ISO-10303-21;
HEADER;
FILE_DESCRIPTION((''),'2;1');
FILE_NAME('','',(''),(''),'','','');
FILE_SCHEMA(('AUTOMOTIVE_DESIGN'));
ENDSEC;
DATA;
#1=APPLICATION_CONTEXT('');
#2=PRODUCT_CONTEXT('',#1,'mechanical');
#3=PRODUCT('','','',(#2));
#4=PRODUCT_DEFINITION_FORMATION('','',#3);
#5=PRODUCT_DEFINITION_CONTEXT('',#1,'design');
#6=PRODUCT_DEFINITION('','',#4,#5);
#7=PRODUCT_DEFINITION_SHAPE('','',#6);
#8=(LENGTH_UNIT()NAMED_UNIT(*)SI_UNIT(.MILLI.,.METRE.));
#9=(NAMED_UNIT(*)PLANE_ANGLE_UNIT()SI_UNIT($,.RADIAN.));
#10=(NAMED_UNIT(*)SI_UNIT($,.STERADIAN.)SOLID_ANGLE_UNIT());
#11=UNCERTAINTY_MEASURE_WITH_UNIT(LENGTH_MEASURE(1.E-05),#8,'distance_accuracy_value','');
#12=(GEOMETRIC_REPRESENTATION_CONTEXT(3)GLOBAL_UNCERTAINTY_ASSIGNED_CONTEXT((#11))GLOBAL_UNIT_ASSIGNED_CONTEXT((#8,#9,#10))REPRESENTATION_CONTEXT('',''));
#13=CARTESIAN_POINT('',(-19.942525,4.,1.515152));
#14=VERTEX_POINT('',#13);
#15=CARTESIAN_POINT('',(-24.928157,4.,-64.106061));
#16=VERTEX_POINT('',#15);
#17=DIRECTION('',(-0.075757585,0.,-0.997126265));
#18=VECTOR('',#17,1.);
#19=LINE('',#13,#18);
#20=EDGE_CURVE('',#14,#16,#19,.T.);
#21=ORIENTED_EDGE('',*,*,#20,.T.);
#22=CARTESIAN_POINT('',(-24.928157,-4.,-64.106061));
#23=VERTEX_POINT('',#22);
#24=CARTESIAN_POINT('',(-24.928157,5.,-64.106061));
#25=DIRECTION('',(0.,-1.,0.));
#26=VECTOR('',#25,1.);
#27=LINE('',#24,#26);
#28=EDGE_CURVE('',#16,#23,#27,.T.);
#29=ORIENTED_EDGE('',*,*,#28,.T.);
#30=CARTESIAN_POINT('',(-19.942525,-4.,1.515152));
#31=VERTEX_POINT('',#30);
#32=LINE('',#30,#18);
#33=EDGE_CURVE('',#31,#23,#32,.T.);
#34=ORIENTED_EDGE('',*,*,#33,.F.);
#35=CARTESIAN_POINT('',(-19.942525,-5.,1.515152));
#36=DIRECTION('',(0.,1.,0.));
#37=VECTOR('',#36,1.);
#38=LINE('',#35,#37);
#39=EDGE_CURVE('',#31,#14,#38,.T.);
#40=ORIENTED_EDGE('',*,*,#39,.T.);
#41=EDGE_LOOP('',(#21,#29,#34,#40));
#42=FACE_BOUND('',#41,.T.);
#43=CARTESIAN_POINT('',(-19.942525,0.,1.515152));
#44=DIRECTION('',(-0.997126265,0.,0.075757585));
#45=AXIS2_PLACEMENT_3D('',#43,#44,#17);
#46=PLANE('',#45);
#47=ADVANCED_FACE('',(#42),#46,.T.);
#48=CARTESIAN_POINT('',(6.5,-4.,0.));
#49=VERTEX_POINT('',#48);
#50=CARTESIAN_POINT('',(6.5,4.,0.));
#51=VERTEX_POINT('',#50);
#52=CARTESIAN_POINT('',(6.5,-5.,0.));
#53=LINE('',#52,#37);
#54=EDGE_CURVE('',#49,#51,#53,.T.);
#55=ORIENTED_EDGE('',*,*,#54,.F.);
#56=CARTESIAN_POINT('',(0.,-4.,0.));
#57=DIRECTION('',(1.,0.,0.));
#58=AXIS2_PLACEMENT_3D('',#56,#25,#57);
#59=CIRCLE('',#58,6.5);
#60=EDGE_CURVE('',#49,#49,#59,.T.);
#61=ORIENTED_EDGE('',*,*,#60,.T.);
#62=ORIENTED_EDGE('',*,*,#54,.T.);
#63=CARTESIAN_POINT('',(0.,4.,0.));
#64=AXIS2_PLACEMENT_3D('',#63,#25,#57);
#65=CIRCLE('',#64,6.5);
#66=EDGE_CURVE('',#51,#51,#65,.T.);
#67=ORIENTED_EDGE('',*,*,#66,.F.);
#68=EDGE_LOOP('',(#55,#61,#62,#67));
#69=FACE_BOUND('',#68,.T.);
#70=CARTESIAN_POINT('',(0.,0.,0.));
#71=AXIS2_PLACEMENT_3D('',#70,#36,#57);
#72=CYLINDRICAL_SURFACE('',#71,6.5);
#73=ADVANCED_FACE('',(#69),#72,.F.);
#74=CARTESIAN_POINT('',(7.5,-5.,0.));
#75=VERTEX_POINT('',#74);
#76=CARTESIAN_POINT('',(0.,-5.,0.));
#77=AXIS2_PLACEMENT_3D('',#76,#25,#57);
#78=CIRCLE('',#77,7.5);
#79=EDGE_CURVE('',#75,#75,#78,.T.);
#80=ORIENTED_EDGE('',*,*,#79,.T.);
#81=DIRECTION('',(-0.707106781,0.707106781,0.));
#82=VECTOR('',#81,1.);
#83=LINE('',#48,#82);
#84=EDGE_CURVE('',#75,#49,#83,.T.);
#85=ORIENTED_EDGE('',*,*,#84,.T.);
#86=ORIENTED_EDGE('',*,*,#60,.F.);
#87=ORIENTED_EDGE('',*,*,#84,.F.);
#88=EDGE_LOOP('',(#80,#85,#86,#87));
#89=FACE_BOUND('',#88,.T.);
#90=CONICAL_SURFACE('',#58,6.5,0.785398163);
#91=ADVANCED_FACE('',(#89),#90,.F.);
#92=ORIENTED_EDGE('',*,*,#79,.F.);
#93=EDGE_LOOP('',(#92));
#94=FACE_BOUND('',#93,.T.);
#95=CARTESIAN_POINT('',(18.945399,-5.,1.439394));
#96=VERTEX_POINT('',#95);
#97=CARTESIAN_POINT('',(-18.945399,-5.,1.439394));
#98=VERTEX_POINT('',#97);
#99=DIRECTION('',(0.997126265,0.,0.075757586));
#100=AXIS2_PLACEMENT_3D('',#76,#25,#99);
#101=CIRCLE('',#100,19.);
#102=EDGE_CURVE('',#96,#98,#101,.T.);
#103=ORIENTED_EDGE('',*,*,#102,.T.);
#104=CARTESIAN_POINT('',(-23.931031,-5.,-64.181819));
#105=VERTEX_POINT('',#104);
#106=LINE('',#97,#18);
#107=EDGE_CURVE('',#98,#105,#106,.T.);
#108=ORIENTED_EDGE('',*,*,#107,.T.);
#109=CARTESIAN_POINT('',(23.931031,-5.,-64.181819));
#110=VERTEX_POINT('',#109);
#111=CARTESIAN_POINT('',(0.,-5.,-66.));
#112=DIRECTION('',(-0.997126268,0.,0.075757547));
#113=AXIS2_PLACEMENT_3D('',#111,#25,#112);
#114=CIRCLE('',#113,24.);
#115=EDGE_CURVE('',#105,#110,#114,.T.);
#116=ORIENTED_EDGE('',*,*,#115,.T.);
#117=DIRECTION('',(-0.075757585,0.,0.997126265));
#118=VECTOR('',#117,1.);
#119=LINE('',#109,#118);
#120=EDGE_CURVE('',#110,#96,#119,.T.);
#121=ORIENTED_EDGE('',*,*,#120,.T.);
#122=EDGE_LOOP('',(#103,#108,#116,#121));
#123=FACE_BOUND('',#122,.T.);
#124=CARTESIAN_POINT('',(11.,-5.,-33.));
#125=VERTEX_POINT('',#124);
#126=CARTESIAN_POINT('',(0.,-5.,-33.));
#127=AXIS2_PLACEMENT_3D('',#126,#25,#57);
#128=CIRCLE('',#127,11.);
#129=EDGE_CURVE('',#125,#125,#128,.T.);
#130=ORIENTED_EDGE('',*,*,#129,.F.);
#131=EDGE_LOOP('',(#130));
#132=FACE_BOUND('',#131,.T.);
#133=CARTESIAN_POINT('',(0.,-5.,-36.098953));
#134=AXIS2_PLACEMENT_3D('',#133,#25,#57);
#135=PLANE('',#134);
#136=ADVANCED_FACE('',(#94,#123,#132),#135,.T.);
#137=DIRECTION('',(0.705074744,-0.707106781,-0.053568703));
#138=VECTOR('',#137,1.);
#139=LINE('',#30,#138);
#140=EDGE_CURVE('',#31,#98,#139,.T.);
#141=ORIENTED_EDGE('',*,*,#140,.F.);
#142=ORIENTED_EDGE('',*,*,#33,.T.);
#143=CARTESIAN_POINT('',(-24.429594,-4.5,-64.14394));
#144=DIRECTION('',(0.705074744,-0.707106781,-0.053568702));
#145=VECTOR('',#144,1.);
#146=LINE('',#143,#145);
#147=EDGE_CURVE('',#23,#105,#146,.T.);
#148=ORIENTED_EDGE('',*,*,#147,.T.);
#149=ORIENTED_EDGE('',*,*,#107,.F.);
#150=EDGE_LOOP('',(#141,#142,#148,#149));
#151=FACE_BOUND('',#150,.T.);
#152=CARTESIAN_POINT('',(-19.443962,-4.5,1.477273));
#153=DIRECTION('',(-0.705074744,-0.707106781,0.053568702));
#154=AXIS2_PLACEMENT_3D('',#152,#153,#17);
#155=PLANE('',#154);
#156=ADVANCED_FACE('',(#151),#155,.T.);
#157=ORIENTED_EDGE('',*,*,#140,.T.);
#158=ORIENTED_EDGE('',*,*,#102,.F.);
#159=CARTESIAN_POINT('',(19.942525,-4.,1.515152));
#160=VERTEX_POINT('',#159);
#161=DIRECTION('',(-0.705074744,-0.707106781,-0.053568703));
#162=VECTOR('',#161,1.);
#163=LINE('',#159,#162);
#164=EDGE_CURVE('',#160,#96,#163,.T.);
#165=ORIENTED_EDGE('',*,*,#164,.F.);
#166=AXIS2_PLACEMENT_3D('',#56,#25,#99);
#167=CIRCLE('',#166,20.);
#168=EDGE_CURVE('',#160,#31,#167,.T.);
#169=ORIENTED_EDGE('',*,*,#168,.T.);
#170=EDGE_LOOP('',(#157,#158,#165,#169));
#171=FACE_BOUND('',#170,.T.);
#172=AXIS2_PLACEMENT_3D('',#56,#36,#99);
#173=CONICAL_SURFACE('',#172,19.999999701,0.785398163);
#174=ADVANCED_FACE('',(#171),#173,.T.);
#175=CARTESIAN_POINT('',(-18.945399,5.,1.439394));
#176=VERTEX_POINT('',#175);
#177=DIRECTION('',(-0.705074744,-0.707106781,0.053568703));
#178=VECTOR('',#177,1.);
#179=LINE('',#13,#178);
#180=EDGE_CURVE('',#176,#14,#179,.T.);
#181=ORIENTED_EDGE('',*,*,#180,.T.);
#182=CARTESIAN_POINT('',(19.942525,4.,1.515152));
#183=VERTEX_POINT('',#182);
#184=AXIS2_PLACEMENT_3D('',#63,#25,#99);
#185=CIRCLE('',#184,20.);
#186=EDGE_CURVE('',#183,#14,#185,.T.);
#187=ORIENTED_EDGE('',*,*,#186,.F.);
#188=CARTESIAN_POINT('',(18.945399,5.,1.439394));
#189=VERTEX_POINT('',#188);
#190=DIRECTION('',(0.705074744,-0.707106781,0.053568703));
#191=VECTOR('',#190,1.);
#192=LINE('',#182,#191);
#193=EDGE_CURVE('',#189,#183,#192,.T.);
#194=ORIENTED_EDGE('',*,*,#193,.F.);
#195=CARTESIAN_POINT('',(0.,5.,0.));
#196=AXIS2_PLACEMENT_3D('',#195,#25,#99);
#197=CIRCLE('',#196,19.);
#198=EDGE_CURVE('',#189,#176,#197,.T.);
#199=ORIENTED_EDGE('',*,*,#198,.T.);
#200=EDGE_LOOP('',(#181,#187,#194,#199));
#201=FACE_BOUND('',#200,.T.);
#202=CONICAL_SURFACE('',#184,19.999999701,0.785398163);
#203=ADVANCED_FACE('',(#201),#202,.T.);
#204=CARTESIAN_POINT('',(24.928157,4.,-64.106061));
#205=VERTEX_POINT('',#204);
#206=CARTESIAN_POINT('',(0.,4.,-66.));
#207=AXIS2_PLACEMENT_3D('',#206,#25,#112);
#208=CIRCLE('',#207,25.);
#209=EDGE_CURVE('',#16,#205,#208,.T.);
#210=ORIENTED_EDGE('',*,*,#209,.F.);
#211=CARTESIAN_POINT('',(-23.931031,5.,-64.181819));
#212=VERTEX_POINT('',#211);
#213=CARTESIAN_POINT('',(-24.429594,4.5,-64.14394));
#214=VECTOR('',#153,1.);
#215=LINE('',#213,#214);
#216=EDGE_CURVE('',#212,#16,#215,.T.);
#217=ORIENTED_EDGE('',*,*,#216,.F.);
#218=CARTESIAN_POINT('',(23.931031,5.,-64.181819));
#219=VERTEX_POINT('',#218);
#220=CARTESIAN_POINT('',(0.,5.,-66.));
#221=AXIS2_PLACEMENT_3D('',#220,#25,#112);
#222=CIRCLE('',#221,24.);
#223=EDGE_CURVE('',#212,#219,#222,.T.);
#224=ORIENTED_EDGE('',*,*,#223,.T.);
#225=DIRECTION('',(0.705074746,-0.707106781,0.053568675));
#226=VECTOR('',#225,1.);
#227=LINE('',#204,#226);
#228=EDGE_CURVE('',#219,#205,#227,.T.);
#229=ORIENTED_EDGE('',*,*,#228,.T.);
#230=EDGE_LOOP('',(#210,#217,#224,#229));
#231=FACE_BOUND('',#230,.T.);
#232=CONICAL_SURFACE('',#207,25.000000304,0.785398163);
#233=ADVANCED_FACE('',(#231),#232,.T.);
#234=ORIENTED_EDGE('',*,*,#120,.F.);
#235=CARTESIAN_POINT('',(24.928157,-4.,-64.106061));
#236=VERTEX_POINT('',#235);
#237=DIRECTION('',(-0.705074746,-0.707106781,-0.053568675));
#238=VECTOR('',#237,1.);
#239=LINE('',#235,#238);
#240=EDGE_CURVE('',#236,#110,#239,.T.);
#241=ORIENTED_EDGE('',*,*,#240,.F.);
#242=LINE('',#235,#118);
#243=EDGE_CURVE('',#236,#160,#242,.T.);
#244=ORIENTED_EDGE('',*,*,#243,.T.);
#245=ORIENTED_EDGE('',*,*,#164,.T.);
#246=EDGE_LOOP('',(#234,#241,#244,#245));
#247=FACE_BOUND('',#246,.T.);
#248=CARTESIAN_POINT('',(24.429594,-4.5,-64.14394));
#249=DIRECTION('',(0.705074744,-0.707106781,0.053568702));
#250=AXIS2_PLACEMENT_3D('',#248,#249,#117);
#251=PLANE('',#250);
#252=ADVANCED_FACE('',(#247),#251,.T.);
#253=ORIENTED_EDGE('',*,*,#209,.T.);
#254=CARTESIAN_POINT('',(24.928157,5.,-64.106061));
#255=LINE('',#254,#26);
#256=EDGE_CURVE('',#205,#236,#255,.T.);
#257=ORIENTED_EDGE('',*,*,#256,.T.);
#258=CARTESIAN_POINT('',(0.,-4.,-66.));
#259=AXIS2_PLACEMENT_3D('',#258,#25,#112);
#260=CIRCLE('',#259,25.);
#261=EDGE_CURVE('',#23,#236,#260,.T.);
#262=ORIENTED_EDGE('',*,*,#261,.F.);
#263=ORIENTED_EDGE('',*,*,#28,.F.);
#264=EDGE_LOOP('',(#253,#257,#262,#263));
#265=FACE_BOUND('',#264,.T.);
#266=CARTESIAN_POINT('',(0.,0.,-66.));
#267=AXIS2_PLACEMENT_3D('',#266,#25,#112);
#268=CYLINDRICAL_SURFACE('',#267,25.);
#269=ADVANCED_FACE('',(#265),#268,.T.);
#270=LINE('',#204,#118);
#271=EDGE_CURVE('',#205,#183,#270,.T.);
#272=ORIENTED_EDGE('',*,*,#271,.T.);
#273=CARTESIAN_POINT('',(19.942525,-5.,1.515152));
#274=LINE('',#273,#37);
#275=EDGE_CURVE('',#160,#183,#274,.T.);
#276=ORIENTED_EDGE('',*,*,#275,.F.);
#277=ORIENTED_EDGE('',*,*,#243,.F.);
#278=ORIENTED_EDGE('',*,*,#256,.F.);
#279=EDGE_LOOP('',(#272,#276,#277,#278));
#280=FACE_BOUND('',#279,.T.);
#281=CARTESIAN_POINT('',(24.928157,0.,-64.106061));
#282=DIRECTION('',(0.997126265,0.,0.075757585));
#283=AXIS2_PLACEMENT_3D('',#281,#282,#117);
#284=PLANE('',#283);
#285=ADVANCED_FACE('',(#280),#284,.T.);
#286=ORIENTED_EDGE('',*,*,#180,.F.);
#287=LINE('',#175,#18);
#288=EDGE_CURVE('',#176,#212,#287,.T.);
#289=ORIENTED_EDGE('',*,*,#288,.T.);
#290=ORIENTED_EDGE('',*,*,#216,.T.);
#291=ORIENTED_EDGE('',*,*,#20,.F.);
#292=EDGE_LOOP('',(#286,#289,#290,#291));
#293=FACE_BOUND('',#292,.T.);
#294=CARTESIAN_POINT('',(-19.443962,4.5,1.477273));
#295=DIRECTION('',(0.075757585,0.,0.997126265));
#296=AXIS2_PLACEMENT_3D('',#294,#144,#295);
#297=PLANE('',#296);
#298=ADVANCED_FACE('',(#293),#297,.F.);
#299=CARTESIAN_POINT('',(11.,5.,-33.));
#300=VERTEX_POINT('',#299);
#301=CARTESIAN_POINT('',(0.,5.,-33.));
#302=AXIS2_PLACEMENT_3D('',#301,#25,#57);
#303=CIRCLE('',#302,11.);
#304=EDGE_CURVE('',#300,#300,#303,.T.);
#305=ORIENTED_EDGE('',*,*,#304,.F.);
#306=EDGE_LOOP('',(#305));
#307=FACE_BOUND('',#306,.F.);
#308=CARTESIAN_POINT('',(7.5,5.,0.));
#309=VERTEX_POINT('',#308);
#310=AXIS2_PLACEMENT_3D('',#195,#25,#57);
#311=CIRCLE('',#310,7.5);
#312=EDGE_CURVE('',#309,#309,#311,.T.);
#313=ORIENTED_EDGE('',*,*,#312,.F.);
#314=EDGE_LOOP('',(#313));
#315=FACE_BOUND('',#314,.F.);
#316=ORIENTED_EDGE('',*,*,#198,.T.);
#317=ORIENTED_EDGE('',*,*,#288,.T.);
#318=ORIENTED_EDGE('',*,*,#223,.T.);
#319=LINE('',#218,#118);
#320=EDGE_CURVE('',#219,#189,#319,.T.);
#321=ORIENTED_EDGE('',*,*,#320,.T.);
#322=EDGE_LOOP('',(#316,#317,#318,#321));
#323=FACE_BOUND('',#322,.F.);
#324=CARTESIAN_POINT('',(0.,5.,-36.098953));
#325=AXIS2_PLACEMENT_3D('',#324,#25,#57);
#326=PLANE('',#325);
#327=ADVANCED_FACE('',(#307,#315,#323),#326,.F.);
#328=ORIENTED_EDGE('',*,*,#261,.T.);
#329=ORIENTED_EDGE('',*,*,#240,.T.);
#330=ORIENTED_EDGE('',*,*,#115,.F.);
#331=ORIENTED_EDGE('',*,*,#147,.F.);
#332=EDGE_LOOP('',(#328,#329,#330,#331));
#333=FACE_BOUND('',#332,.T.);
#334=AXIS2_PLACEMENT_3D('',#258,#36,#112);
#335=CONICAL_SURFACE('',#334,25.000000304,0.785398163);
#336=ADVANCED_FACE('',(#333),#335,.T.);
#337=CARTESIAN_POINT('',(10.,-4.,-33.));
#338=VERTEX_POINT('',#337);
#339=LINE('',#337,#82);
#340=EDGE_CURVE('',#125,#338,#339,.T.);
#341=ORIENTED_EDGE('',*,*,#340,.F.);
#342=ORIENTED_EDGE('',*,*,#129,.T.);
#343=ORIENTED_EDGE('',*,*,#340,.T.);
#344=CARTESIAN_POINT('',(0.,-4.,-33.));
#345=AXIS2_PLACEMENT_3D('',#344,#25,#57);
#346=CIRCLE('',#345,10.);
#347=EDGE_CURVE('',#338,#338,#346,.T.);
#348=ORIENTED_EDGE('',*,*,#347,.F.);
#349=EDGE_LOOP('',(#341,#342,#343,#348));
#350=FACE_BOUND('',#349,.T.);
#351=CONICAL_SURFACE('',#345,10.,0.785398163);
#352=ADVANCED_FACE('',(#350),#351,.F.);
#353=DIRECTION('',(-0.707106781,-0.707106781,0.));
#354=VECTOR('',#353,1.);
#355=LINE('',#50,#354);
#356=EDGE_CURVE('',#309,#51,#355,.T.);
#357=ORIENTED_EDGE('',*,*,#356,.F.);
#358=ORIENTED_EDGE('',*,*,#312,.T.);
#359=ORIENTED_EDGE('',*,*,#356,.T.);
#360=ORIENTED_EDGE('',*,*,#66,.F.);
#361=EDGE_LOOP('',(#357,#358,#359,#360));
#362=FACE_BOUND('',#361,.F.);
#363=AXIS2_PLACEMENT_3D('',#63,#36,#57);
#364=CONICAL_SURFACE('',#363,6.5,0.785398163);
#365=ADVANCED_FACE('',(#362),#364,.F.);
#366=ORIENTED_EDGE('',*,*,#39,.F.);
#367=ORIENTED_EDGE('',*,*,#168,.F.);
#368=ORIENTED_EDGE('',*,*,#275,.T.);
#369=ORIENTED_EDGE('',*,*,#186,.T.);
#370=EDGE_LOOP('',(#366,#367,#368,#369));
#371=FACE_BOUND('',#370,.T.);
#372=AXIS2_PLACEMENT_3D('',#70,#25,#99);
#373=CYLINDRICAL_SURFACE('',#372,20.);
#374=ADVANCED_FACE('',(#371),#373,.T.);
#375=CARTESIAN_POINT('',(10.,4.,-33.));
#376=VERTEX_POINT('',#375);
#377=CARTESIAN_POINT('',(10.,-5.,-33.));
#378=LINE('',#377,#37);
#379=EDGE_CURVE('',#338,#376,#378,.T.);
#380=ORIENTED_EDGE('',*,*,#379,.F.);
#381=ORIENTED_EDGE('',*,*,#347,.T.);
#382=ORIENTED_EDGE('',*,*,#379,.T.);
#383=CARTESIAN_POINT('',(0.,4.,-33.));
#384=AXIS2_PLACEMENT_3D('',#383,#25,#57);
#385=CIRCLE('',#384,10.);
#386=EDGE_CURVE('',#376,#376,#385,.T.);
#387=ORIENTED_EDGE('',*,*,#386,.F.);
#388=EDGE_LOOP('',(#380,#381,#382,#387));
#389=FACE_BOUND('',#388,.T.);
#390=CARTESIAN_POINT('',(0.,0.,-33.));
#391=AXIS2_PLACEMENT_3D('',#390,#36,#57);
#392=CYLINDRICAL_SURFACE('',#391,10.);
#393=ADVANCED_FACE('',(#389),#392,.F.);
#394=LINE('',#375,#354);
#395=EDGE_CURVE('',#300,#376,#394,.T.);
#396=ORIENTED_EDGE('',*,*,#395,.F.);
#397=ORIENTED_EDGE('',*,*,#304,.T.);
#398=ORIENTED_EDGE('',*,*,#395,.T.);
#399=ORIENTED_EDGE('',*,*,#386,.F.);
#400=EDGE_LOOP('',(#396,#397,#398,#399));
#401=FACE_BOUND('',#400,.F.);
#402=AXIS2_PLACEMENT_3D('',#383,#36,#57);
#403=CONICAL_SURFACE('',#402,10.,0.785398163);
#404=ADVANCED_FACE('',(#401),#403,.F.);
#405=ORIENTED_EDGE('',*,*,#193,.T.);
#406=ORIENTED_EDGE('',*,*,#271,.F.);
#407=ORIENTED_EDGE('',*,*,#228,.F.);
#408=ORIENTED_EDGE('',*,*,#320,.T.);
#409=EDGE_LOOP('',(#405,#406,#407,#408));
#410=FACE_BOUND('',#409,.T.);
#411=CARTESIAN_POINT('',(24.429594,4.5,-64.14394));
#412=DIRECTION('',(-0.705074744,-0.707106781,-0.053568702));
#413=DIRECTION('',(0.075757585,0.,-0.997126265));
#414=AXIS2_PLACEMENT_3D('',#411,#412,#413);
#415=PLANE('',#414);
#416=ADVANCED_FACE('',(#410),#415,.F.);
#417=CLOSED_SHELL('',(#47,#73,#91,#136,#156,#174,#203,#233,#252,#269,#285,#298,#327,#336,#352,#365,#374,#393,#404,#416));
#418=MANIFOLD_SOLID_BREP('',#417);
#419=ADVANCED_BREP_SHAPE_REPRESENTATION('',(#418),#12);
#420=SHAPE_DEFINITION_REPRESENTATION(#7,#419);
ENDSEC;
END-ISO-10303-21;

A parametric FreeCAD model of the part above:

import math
import FreeCAD as App
import Part
import Sketcher
from FreeCAD import Vector
Q = App.Units.Quantity


def edges_at(feature, points):
    """Names of the edges that pass closest to the given points."""
    edges = feature.Shape.Edges
    near = lambda p: min(range(len(edges)), key=lambda i: edges[i].distToShape(Part.Vertex(*p))[0])
    return sorted({f"Edge{near(p) + 1}" for p in points})

doc = App.newDocument("Part")
body = doc.addObject("PartDesign::Body", "Body")

sketch1 = doc.addObject("Sketcher::SketchObject", "Sketch")
body.addObject(sketch1)
sketch1.AttachmentSupport = (doc.XZ_Plane, [""])
sketch1.MapMode = "FlatFace"
sketch1.addGeometry([
    Part.LineSegment(Vector(-20, 2, 0), Vector(-25, -64, 0)),
    Part.ArcOfCircle(Part.Circle(Vector(0, -66, 0), Vector(0, 0, 1), 25), math.radians(176), math.radians(364)),
    Part.LineSegment(Vector(25, -64, 0), Vector(20, 2, 0)),
    Part.ArcOfCircle(Part.Circle(Vector(0, 0, 0), Vector(0, 0, 1), 20), math.radians(4), math.radians(176)),
    Part.Circle(Vector(0, -33, 0), Vector(0, 0, 1), 10),
    Part.Circle(Vector(0, 0, 0), Vector(0, 0, 1), 6),
], False)
sketch1.addConstraint([
    Sketcher.Constraint("Tangent", 0, 2, 1, 1),
    Sketcher.Constraint("Tangent", 1, 2, 2, 1),
    Sketcher.Constraint("Tangent", 2, 2, 3, 1),
    Sketcher.Constraint("Tangent", 3, 2, 0, 1),
    Sketcher.Constraint("Coincident", 3, 3, -1, 1),
    Sketcher.Constraint("Coincident", 5, 3, -1, 1),
    Sketcher.Constraint("PointOnObject", 1, 3, -2),
    Sketcher.Constraint("PointOnObject", 4, 3, -2),
    Sketcher.Constraint("Diameter", 4, Q("20 mm")),
    Sketcher.Constraint("Diameter", 5, Q("13 mm")),
    Sketcher.Constraint("Radius", 1, Q("25 mm")),
    Sketcher.Constraint("Radius", 3, Q("20 mm")),
    Sketcher.Constraint("DistanceY", 1, 3, -1, 1, Q("66 mm")),
    Sketcher.Constraint("DistanceY", 4, 3, -1, 1, Q("33 mm")),
])
pad1 = doc.addObject("PartDesign::Pad", "Pad")
body.addObject(pad1)
pad1.Profile = sketch1
pad1.Length = 10
pad1.Midplane = True
doc.recompute()

chamfer = doc.addObject("PartDesign::Chamfer", "Chamfer")
body.addObject(chamfer)
chamfer.Base = (pad1, edges_at(pad1, [
    (0, -5, 20),
    (-22.435, -5, -31.295),
    (0, -5, -91),
    (22.435, -5, -31.295),
    (-10, -5, -33),
    (-6.5, -5, 0),
]))
chamfer.ChamferType = "Two distances"
chamfer.Size = 1
chamfer.Size2 = 1
doc.recompute()

chamfer2 = doc.addObject("PartDesign::Chamfer", "Chamfer001")
body.addObject(chamfer2)
chamfer2.Base = (chamfer, edges_at(chamfer, [
    (0, 5, 20),
    (-22.435, 5, -31.295),
    (0, 5, -91),
    (22.435, 5, -31.295),
    (-10, 5, -33),
    (-6.5, 5, 0),
]))
chamfer2.ChamferType = "Two distances"
chamfer2.Size = 1
chamfer2.Size2 = 1

doc.recompute()
